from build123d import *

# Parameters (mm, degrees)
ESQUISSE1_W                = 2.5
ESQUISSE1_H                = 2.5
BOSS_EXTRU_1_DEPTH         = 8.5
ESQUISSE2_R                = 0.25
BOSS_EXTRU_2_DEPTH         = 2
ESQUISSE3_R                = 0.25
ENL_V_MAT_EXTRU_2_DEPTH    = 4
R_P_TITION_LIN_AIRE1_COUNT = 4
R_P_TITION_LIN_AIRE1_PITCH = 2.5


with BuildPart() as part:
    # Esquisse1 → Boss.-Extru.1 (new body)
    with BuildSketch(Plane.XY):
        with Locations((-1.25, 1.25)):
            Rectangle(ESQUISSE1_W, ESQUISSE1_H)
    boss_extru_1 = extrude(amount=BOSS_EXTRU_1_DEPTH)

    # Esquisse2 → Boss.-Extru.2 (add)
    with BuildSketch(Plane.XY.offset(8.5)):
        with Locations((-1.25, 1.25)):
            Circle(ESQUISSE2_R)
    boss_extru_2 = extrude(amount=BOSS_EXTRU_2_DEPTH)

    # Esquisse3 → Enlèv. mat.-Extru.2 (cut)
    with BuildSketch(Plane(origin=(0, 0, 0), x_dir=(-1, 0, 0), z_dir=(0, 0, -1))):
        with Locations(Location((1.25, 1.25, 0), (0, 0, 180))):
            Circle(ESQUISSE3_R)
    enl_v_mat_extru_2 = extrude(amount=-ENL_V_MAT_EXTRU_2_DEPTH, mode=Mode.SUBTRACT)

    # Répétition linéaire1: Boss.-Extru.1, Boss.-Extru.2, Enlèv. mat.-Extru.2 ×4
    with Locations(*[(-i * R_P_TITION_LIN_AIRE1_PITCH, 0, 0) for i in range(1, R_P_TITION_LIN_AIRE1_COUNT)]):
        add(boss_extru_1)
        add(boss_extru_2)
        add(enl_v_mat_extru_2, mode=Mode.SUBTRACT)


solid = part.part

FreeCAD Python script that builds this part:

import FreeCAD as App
import Part
import Sketcher
from FreeCAD import Vector

doc = App.newDocument("Part")
body = doc.addObject("PartDesign::Body", "Body")

sketch1 = body.newObject("Sketcher::SketchObject", "Sketch")
sketch1.AttachmentSupport = (doc.getObject("XY_Plane"), [""])
sketch1.MapMode = "FlatFace"
sketch1.addGeometry([
    Part.LineSegment(Vector(-2.5, 2.5, 0), Vector(-2.5, 0, 0)),
    Part.LineSegment(Vector(-2.5, 0, 0), Vector(0, 0, 0)),
    Part.LineSegment(Vector(0, 0, 0), Vector(0, 2.5, 0)),
    Part.LineSegment(Vector(0, 2.5, 0), Vector(-2.5, 2.5, 0)),
], False)
sketch1.addConstraint([
    Sketcher.Constraint("Coincident", 0, 2, 1, 1),
    Sketcher.Constraint("Coincident", 1, 2, 2, 1),
    Sketcher.Constraint("Coincident", 2, 2, 3, 1),
    Sketcher.Constraint("Coincident", 3, 2, 0, 1),
    Sketcher.Constraint("Vertical", 0),
    Sketcher.Constraint("Horizontal", 1),
    Sketcher.Constraint("Vertical", 2),
    Sketcher.Constraint("Horizontal", 3),
    Sketcher.Constraint("Coincident", 1, 2, -1, 1),
    Sketcher.Constraint("Equal", 3, 0),
    Sketcher.Constraint("DistanceX", 1, 1, 1, 2, 2.5),
])
pad1 = body.newObject("PartDesign::Pad", "Pad")
pad1.Profile = sketch1
pad1.Length = 8.5

sketch2 = body.newObject("Sketcher::SketchObject", "Sketch001")
sketch2.AttachmentSupport = (doc.getObject("XY_Plane"), [""])
sketch2.MapMode = "FlatFace"
sketch2.AttachmentOffset = App.Placement(Vector(0, 0, 8.5), App.Rotation())
sketch2.addGeometry(Part.Circle(Vector(-1.25, 1.25, 0), Vector(0, 0, 1), 0.25), False)
sketch2.addConstraint([
    Sketcher.Constraint("Diameter", 0, 0.5),
    Sketcher.Constraint("DistanceX", 0, 3, -1, 1, 1.25),
    Sketcher.Constraint("DistanceY", -1, 1, 0, 3, 1.25),
])
pad2 = body.newObject("PartDesign::Pad", "Pad001")
pad2.Profile = sketch2
pad2.Length = 2

sketch3 = body.newObject("Sketcher::SketchObject", "Sketch002")
sketch3.AttachmentSupport = (doc.getObject("XY_Plane"), [""])
sketch3.MapMode = "FlatFace"
sketch3.addGeometry(Part.Circle(Vector(-1.25, 1.25, 0), Vector(0, 0, 1), 0.25), False)
sketch3.addConstraint([
    Sketcher.Constraint("Diameter", 0, 0.5),
    Sketcher.Constraint("DistanceX", 0, 3, -1, 1, 1.25),
    Sketcher.Constraint("DistanceY", -1, 1, 0, 3, 1.25),
])
pocket1 = body.newObject("PartDesign::Pocket", "Pocket")
pocket1.Profile = sketch3
pocket1.Length = 4
pocket1.Reversed = True
doc.recompute()

linearpattern = body.newObject("PartDesign::LinearPattern", "LinearPattern")
linearpattern.Originals = [pad1, pad2, pocket1]
linearpattern.Direction = (doc.getObject("X_Axis"), [""])
linearpattern.Mode = "offset"
linearpattern.Offset = 2.5
linearpattern.Occurrences = 4
linearpattern.Reversed = True
body.Tip = linearpattern

doc.recompute()
